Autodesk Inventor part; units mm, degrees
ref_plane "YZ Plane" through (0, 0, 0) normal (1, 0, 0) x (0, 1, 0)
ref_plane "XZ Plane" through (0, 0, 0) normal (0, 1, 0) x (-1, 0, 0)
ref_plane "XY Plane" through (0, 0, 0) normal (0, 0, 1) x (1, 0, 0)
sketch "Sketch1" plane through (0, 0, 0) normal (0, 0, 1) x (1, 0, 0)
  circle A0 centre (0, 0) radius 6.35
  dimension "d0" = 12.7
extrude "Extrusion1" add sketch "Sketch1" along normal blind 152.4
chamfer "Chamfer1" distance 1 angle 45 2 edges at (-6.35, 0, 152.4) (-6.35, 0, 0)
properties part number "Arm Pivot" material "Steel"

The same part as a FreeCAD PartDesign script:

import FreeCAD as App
import Part
import Sketcher
from FreeCAD import Vector
Q = App.Units.Quantity


def edges_at(feature, points):
    """Names of the edges that pass closest to the given points."""
    edges = feature.Shape.Edges
    near = lambda p: min(range(len(edges)), key=lambda i: edges[i].distToShape(Part.Vertex(*p))[0])
    return sorted({f"Edge{near(p) + 1}" for p in points})

doc = App.newDocument("Part")
body = doc.addObject("PartDesign::Body", "Body")

# Sketch on XY plane
sketch1 = doc.addObject("Sketcher::SketchObject", "Sketch")
body.addObject(sketch1)
sketch1.AttachmentSupport = (doc.XY_Plane, [""])
sketch1.MapMode = "FlatFace"
sketch1.addGeometry(Part.Circle(Vector(0, 0, 0), Vector(0, 0, 1), 6.35), False)
sketch1.addConstraint(Sketcher.Constraint("Coincident", 0, 3, -1, 1))
sketch1.addConstraint(Sketcher.Constraint("Diameter", 0, Q("0.5 in")))
pad1 = doc.addObject("PartDesign::Pad", "Pad")
body.addObject(pad1)
pad1.Profile = sketch1
pad1.Length = Q("6 in")
doc.recompute()

chamfer = doc.addObject("PartDesign::Chamfer", "Chamfer")
body.addObject(chamfer)
chamfer.Base = (pad1, edges_at(pad1, [(-6.35, 0, 152.4), (-6.35, 0, 0)]))
chamfer.Size = 1

doc.recompute()
